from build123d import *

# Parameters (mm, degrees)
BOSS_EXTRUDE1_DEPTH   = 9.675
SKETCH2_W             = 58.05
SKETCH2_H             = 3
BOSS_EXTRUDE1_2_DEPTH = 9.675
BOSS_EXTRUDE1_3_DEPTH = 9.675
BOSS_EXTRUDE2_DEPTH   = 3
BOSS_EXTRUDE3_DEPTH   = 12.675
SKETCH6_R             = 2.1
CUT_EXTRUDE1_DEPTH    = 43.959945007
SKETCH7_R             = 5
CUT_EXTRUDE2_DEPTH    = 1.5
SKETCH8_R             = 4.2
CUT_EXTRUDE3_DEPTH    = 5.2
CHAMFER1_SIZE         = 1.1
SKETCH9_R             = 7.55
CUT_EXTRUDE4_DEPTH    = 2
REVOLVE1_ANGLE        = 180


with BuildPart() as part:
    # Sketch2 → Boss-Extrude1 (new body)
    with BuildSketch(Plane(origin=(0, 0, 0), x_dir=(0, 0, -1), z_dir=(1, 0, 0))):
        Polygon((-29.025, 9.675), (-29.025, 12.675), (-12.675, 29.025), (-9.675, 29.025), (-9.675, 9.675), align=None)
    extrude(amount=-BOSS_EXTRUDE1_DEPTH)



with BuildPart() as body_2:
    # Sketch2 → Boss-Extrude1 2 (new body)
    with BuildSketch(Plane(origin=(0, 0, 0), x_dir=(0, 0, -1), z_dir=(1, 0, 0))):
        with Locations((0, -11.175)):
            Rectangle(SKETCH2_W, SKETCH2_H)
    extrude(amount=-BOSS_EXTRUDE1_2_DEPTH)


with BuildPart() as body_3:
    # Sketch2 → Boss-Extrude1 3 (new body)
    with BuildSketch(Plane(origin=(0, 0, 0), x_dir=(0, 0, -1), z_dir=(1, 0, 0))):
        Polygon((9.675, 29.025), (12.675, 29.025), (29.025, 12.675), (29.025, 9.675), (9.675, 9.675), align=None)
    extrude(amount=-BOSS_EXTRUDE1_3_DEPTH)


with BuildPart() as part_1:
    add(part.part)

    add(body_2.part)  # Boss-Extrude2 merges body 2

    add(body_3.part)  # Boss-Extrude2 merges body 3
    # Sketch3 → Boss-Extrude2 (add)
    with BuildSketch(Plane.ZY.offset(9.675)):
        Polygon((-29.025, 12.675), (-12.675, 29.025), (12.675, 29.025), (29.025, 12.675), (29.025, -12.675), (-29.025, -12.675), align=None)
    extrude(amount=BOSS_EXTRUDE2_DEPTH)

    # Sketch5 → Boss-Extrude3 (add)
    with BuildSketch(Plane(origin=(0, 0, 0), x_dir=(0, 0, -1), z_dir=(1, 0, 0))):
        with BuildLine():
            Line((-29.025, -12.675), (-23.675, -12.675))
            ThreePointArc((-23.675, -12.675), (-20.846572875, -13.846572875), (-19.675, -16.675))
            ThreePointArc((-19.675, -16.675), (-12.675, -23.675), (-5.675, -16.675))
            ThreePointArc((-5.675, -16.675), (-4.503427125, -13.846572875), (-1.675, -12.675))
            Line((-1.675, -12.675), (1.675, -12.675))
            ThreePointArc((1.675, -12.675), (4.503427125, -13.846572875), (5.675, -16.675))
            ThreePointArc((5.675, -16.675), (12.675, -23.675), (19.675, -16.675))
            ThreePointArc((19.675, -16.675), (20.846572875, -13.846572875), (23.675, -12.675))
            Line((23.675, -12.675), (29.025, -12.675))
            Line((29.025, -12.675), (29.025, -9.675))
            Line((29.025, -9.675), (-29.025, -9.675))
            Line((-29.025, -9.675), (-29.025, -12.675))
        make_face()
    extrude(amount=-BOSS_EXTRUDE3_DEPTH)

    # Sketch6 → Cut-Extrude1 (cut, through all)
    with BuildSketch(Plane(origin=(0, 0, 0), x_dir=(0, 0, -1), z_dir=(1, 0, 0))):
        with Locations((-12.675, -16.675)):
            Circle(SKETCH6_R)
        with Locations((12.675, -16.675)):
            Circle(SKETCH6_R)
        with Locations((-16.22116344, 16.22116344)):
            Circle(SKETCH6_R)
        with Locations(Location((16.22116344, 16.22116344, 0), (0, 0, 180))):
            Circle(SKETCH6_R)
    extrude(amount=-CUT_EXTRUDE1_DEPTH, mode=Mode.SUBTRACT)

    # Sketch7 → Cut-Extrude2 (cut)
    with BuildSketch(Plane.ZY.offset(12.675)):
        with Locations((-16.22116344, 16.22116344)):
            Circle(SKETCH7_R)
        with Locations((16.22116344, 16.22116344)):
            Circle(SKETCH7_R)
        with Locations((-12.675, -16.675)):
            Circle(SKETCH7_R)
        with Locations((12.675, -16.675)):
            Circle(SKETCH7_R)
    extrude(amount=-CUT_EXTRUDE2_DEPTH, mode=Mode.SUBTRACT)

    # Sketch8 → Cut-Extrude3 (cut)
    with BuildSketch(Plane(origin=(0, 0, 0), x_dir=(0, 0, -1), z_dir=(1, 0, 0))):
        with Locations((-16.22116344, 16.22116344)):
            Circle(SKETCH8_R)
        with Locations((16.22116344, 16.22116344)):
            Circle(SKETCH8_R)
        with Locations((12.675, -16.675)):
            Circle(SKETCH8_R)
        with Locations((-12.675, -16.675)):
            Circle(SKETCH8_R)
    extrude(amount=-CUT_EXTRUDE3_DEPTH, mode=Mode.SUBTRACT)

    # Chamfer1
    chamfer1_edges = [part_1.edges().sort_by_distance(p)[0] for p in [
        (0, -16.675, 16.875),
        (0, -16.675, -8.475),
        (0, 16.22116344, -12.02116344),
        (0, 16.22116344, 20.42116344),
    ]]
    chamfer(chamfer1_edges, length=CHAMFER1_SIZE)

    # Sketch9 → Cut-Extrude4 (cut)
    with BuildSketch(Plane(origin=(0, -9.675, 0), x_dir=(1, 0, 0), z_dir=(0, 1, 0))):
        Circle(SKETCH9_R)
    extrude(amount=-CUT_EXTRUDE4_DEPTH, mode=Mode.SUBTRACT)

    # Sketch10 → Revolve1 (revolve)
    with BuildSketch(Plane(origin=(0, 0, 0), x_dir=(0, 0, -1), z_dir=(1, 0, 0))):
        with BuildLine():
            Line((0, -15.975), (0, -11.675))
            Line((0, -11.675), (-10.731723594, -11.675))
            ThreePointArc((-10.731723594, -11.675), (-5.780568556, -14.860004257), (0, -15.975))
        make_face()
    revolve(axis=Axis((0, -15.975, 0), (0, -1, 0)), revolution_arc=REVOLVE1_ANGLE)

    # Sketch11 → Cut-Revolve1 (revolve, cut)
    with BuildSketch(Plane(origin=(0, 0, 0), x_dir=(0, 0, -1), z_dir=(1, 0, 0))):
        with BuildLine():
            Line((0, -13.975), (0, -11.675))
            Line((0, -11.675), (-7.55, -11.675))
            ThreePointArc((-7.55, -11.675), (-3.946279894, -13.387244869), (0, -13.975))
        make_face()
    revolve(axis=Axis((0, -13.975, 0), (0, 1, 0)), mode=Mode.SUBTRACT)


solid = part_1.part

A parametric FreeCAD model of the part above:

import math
import FreeCAD as App
import Part
import Sketcher


def edges_at(feature, points):
    """Names of the edges that pass closest to the given points."""
    edges = feature.Shape.Edges
    near = lambda p: min(range(len(edges)), key=lambda i: edges[i].distToShape(Part.Vertex(*p))[0])
    return sorted({f"Edge{near(p) + 1}" for p in points})


def add_polygon(sketch, points):
    """Adds a closed chain of lines whose ends are joined by coincident constraints."""
    first, n = sketch.GeometryCount, len(points)
    for a, b in zip(points, points[1:] + points[:1]):
        sketch.addGeometry(Part.LineSegment(App.Vector(*a, 0), App.Vector(*b, 0)), False)
    for i in range(n):
        sketch.addConstraint(Sketcher.Constraint("Coincident", first + i, 2, first + (i + 1) % n, 1))

doc = App.newDocument("Part")
body = doc.addObject("PartDesign::Body", "Body")

# Sketch on YZ plane
sketch1 = doc.addObject("Sketcher::SketchObject", "Sketch")
body.addObject(sketch1)
sketch1.AttachmentSupport = (doc.YZ_Plane, [""])
sketch1.MapMode = "FlatFace"
add_polygon(sketch1, [(12.7, 29), (9.7, 29), (9.7, 9.7), (29, 9.7), (29, 12.7)])  # lines 0-4
sketch1.addConstraint(Sketcher.Constraint("Horizontal", 0))
sketch1.addConstraint(Sketcher.Constraint("Vertical", 1))
sketch1.addConstraint(Sketcher.Constraint("Horizontal", 2))
sketch1.addConstraint(Sketcher.Constraint("Vertical", 3))
sketch1.addConstraint(Sketcher.Constraint("Equal", 2, 1))
sketch1.addConstraint(Sketcher.Constraint("Equal", 0, 3))
sketch1.addConstraint(Sketcher.Constraint("DistanceX", 0, 2, 0, 1, 3.0))
sketch1.addConstraint(Sketcher.Constraint("DistanceX", 2, 1, 2, 2, 19.35))
sketch1.addConstraint(Sketcher.Constraint("DistanceX", -1, 1, 0, 2, 9.675))
sketch1.addConstraint(Sketcher.Constraint("DistanceY", -1, 1, 0, 2, 29.025))
pad1 = doc.addObject("PartDesign::Pad", "Pad")
body.addObject(pad1)
pad1.Profile = sketch1
pad1.Length = 9.675
pad1.Reversed = True
body2 = doc.addObject("PartDesign::Body", "Body001")

# Sketch on YZ plane
sketch2 = doc.addObject("Sketcher::SketchObject", "Sketch001")
body2.addObject(sketch2)
sketch2.AttachmentSupport = (doc.getObject("YZ_Plane001"), [""])
sketch2.MapMode = "FlatFace"
add_polygon(sketch2, [(-9.7, 29), (-12.7, 29), (-12.7, -29), (-9.7, -29)])  # lines 0-3
sketch2.addConstraint(Sketcher.Constraint("Horizontal", 0))
sketch2.addConstraint(Sketcher.Constraint("Vertical", 1))
sketch2.addConstraint(Sketcher.Constraint("Horizontal", 2))
sketch2.addConstraint(Sketcher.Constraint("Vertical", 3))
sketch2.addConstraint(Sketcher.Constraint("DistanceX", 0, 2, 0, 1, 3.0))
sketch2.addConstraint(Sketcher.Constraint("DistanceY", 1, 2, 1, 1, 58.05))
sketch2.addConstraint(Sketcher.Constraint("DistanceX", 0, 2, -1, 1, 12.675))
sketch2.addConstraint(Sketcher.Constraint("DistanceY", -1, 1, 0, 2, 29.025))
pad2 = doc.addObject("PartDesign::Pad", "Pad001")
body2.addObject(pad2)
pad2.Profile = sketch2
pad2.Length = 9.675
pad2.Reversed = True
body3 = doc.addObject("PartDesign::Body", "Body002")

# Sketch on YZ plane
sketch3 = doc.addObject("Sketcher::SketchObject", "Sketch002")
body3.addObject(sketch3)
sketch3.AttachmentSupport = (doc.getObject("YZ_Plane002"), [""])
sketch3.MapMode = "FlatFace"
add_polygon(sketch3, [(29, -12.7), (29, -9.7), (9.7, -9.7), (9.7, -29), (12.7, -29)])  # lines 0-4
sketch3.addConstraint(Sketcher.Constraint("Vertical", 0))
sketch3.addConstraint(Sketcher.Constraint("Horizontal", 1))
sketch3.addConstraint(Sketcher.Constraint("Vertical", 2))
sketch3.addConstraint(Sketcher.Constraint("Horizontal", 3))
sketch3.addConstraint(Sketcher.Constraint("Equal", 3, 0))
sketch3.addConstraint(Sketcher.Constraint("Equal", 1, 2))
sketch3.addConstraint(Sketcher.Constraint("DistanceX", 3, 1, 3, 2, 3.0))
sketch3.addConstraint(Sketcher.Constraint("DistanceX", 1, 2, 1, 1, 19.35))
sketch3.addConstraint(Sketcher.Constraint("DistanceX", -1, 1, 0, 2, 29.025))
sketch3.addConstraint(Sketcher.Constraint("DistanceY", 0, 2, -1, 1, 9.675))
pad3 = doc.addObject("PartDesign::Pad", "Pad002")
body3.addObject(pad3)
pad3.Profile = sketch3
pad3.Length = 9.675
pad3.Reversed = True
body.AllowCompound = True
doc.recompute()

boolean = doc.addObject("PartDesign::Boolean", "Boolean")
body.addObject(boolean)
boolean.Type = "Fuse"
boolean.addObjects([body2])
doc.recompute()

boolean2 = doc.addObject("PartDesign::Boolean", "Boolean001")
body.addObject(boolean2)
boolean2.Type = "Fuse"
boolean2.addObjects([body3])

# Sketch on YZ plane
sketch4 = doc.addObject("Sketcher::SketchObject", "Sketch003")
body.addObject(sketch4)
sketch4.AttachmentSupport = (doc.YZ_Plane, [""])
sketch4.MapMode = "FlatFace"
sketch4.AttachmentOffset = App.Placement(App.Vector(0, 0, -9.675), App.Rotation())
add_polygon(sketch4, [(29, -13), (13, -29), (-13, -29), (-13, 29), (13, 29), (29, 13)])  # lines 0-5
sketch4.addConstraint(Sketcher.Constraint("Horizontal", 1))
sketch4.addConstraint(Sketcher.Constraint("Vertical", 2))
sketch4.addConstraint(Sketcher.Constraint("Horizontal", 3))
sketch4.addConstraint(Sketcher.Constraint("Vertical", 5))
sketch4.addConstraint(Sketcher.Constraint("Symmetric", 0, 2, 2, 2, -1, 1))
sketch4.addConstraint(Sketcher.Constraint("Perpendicular", 0, 4))
sketch4.addConstraint(Sketcher.Constraint("Vertical", 0, 2, 3, 2))
sketch4.addConstraint(Sketcher.Constraint("Equal", 3, 5))
sketch4.addConstraint(Sketcher.Constraint("Equal", 0, 4))
sketch4.addConstraint(Sketcher.Constraint("DistanceX", 1, 2, 1, 1, 25.35))
sketch4.addConstraint(Sketcher.Constraint("DistanceY", 2, 1, 2, 2, 58.05))
pad4 = doc.addObject("PartDesign::Pad", "Pad003")
body.addObject(pad4)
pad4.Profile = sketch4
pad4.Length = 3
pad4.Reversed = True

# Sketch on YZ plane
sketch5 = doc.addObject("Sketcher::SketchObject", "Sketch004")
body.addObject(sketch5)
sketch5.AttachmentSupport = (doc.YZ_Plane, [""])
sketch5.MapMode = "FlatFace"
sketch5.addGeometry(Part.LineSegment(App.Vector(-12.7, 29, 0), App.Vector(-12.7, 23.7, 0)), False)
sketch5.addGeometry(Part.ArcOfCircle(Part.Circle(App.Vector(-16.7, 23.7, 0), App.Vector(0, 0, 1), 4), math.radians(-90), math.radians(0)), False)
sketch5.addGeometry(Part.ArcOfCircle(Part.Circle(App.Vector(-16.7, 12.7, 0), App.Vector(0, 0, 1), 7), math.radians(90), math.radians(270)), False)
sketch5.addGeometry(Part.ArcOfCircle(Part.Circle(App.Vector(-16.7, 1.7, 0), App.Vector(0, 0, 1), 4), math.radians(0), math.radians(90)), False)
sketch5.addGeometry(Part.LineSegment(App.Vector(-12.7, 1.7, 0), App.Vector(-12.7, -1.7, 0)), False)
sketch5.addGeometry(Part.ArcOfCircle(Part.Circle(App.Vector(-16.7, -1.7, 0), App.Vector(0, 0, 1), 4), math.radians(-90), math.radians(0)), False)
sketch5.addGeometry(Part.ArcOfCircle(Part.Circle(App.Vector(-16.7, -12.7, 0), App.Vector(0, 0, 1), 7), math.radians(90), math.radians(270)), False)
sketch5.addGeometry(Part.ArcOfCircle(Part.Circle(App.Vector(-16.7, -23.7, 0), App.Vector(0, 0, 1), 4), math.radians(0), math.radians(90)), False)
sketch5.addGeometry(Part.LineSegment(App.Vector(-12.7, -23.7, 0), App.Vector(-12.7, -29, 0)), False)
sketch5.addGeometry(Part.LineSegment(App.Vector(-12.7, -29, 0), App.Vector(-9.7, -29, 0)), False)
sketch5.addGeometry(Part.LineSegment(App.Vector(-9.7, -29, 0), App.Vector(-9.7, 29, 0)), False)
sketch5.addGeometry(Part.LineSegment(App.Vector(-9.7, 29, 0), App.Vector(-12.7, 29, 0)), False)
sketch5.addConstraint(Sketcher.Constraint("Tangent", 0, 2, 1, 2))
sketch5.addConstraint(Sketcher.Constraint("Tangent", 1, 1, 2, 1))
sketch5.addConstraint(Sketcher.Constraint("Tangent", 2, 2, 3, 2))
sketch5.addConstraint(Sketcher.Constraint("Tangent", 3, 1, 4, 1))
sketch5.addConstraint(Sketcher.Constraint("Tangent", 4, 2, 5, 2))
sketch5.addConstraint(Sketcher.Constraint("Tangent", 5, 1, 6, 1))
sketch5.addConstraint(Sketcher.Constraint("Tangent", 6, 2, 7, 2))
sketch5.addConstraint(Sketcher.Constraint("Tangent", 7, 1, 8, 1))
sketch5.addConstraint(Sketcher.Constraint("Coincident", 8, 2, 9, 1))
sketch5.addConstraint(Sketcher.Constraint("Coincident", 9, 2, 10, 1))
sketch5.addConstraint(Sketcher.Constraint("Coincident", 10, 2, 11, 1))
sketch5.addConstraint(Sketcher.Constraint("Coincident", 11, 2, 0, 1))
sketch5.addConstraint(Sketcher.Constraint("Vertical", 0))
sketch5.addConstraint(Sketcher.Constraint("Vertical", 4))
sketch5.addConstraint(Sketcher.Constraint("Vertical", 8))
sketch5.addConstraint(Sketcher.Constraint("Horizontal", 9))
sketch5.addConstraint(Sketcher.Constraint("Vertical", 10))
sketch5.addConstraint(Sketcher.Constraint("Horizontal", 11))
sketch5.addConstraint(Sketcher.Constraint("Equal", 1, 3))
sketch5.addConstraint(Sketcher.Constraint("Equal", 3, 5))
sketch5.addConstraint(Sketcher.Constraint("Equal", 2, 6))
sketch5.addConstraint(Sketcher.Constraint("Equal", 5, 7))
sketch5.addConstraint(Sketcher.Constraint("Symmetric", 2, 3, 6, 3, -1))
sketch5.addConstraint(Sketcher.Constraint("Symmetric", 8, 2, 11, 2, -1))
sketch5.addConstraint(Sketcher.Constraint("Vertical", 1, 3, 2, 3))
sketch5.addConstraint(Sketcher.Constraint("Vertical", 2, 3, 3, 3))
sketch5.addConstraint(Sketcher.Constraint("Radius", 1, 4.0))
sketch5.addConstraint(Sketcher.Constraint("Radius", 2, 7.0))
sketch5.addConstraint(Sketcher.Constraint("DistanceX", 9, 1, 9, 2, 3.0))
sketch5.addConstraint(Sketcher.Constraint("DistanceY", 0, 2, 0, 1, 5.35))
sketch5.addConstraint(Sketcher.Constraint("DistanceY", 4, 2, 4, 1, 3.35))
sketch5.addConstraint(Sketcher.Constraint("DistanceX", 1, 3, -1, 1, 16.675))
pad5 = doc.addObject("PartDesign::Pad", "Pad004")
body.addObject(pad5)
pad5.Profile = sketch5
pad5.Length = 12.675
pad5.Reversed = True

# Sketch on YZ plane
sketch6 = doc.addObject("Sketcher::SketchObject", "Sketch005")
body.addObject(sketch6)
sketch6.AttachmentSupport = (doc.YZ_Plane, [""])
sketch6.MapMode = "FlatFace"
sketch6.addGeometry(Part.Circle(App.Vector(-16.7, 12.7, 0), App.Vector(0, 0, 1), 2.1), False)
sketch6.addGeometry(Part.Circle(App.Vector(-16.7, -12.7, 0), App.Vector(0, 0, 1), 2.1), False)
sketch6.addGeometry(Part.Circle(App.Vector(16.2, 16.2, 0), App.Vector(0, 0, 1), 2.1), False)
sketch6.addGeometry(Part.Circle(App.Vector(16.2, -16.2, 0), App.Vector(0, 0, 1), 2.1), False)
sketch6.addConstraint(Sketcher.Constraint("Equal", 0, 1))
sketch6.addConstraint(Sketcher.Constraint("Equal", 1, 2))
sketch6.addConstraint(Sketcher.Constraint("Equal", 2, 3))
sketch6.addConstraint(Sketcher.Constraint("Symmetric", 0, 3, 1, 3, -1))
sketch6.addConstraint(Sketcher.Constraint("Symmetric", 2, 3, 3, 3, -1))
sketch6.addConstraint(Sketcher.Constraint("Diameter", 0, 4.2))
sketch6.addConstraint(Sketcher.Constraint("DistanceY", 1, 3, 0, 3, 25.35))
sketch6.addConstraint(Sketcher.Constraint("DistanceX", 0, 3, -1, 1, 16.675))
sketch6.addConstraint(Sketcher.Constraint("DistanceX", -1, 1, 2, 3, 16.221163))
sketch6.addConstraint(Sketcher.Constraint("DistanceY", -1, 1, 2, 3, 16.221163))
pocket1 = doc.addObject("PartDesign::Pocket", "Pocket")
body.addObject(pocket1)
pocket1.Profile = sketch6
pocket1.Type = "ThroughAll"

# Sketch on YZ plane
sketch7 = doc.addObject("Sketcher::SketchObject", "Sketch006")
body.addObject(sketch7)
sketch7.AttachmentSupport = (doc.YZ_Plane, [""])
sketch7.MapMode = "FlatFace"
sketch7.AttachmentOffset = App.Placement(App.Vector(0, 0, -12.675), App.Rotation())
sketch7.addGeometry(Part.Circle(App.Vector(16, -16, 0), App.Vector(0, 0, 1), 5), False)
sketch7.addGeometry(Part.Circle(App.Vector(16, 16, 0), App.Vector(0, 0, 1), 5), False)
sketch7.addGeometry(Part.Circle(App.Vector(-17, -13, 0), App.Vector(0, 0, 1), 5), False)
sketch7.addGeometry(Part.Circle(App.Vector(-17, 13, 0), App.Vector(0, 0, 1), 5), False)
sketch7.addConstraint(Sketcher.Constraint("Equal", 0, 1))
sketch7.addConstraint(Sketcher.Constraint("Equal", 1, 2))
sketch7.addConstraint(Sketcher.Constraint("Equal", 2, 3))
sketch7.addConstraint(Sketcher.Constraint("Symmetric", 0, 3, 1, 3, -1))
sketch7.addConstraint(Sketcher.Constraint("Symmetric", 2, 3, 3, 3, -1))
sketch7.addConstraint(Sketcher.Constraint("Diameter", 0, 10.0))
sketch7.addConstraint(Sketcher.Constraint("DistanceY", 2, 3, 3, 3, 25.35))
sketch7.addConstraint(Sketcher.Constraint("DistanceX", 2, 3, -1, 1, 16.675))
sketch7.addConstraint(Sketcher.Constraint("DistanceX", -1, 1, 0, 3, 16.221163))
sketch7.addConstraint(Sketcher.Constraint("DistanceY", 0, 3, -1, 1, 16.221163))
pocket2 = doc.addObject("PartDesign::Pocket", "Pocket001")
body.addObject(pocket2)
pocket2.Profile = sketch7
pocket2.Length = 1.5
pocket2.Reversed = True

# Sketch on YZ plane
sketch8 = doc.addObject("Sketcher::SketchObject", "Sketch007")
body.addObject(sketch8)
sketch8.AttachmentSupport = (doc.YZ_Plane, [""])
sketch8.MapMode = "FlatFace"
sketch8.addGeometry(Part.Circle(App.Vector(16.2, 16.2, 0), App.Vector(0, 0, 1), 4.2), False)
sketch8.addGeometry(Part.Circle(App.Vector(16.2, -16.2, 0), App.Vector(0, 0, 1), 4.2), False)
sketch8.addGeometry(Part.Circle(App.Vector(-16.7, -12.7, 0), App.Vector(0, 0, 1), 4.2), False)
sketch8.addGeometry(Part.Circle(App.Vector(-16.7, 12.7, 0), App.Vector(0, 0, 1), 4.2), False)
sketch8.addConstraint(Sketcher.Constraint("Equal", 0, 1))
sketch8.addConstraint(Sketcher.Constraint("Equal", 1, 2))
sketch8.addConstraint(Sketcher.Constraint("Equal", 2, 3))
sketch8.addConstraint(Sketcher.Constraint("Symmetric", 0, 3, 1, 3, -1))
sketch8.addConstraint(Sketcher.Constraint("Symmetric", 2, 3, 3, 3, -1))
sketch8.addConstraint(Sketcher.Constraint("Diameter", 0, 8.4))
sketch8.addConstraint(Sketcher.Constraint("DistanceY", 2, 3, 3, 3, 25.35))
sketch8.addConstraint(Sketcher.Constraint("DistanceX", 2, 3, -1, 1, 16.675))
sketch8.addConstraint(Sketcher.Constraint("DistanceX", -1, 1, 0, 3, 16.221163))
sketch8.addConstraint(Sketcher.Constraint("DistanceY", -1, 1, 0, 3, 16.221163))
pocket3 = doc.addObject("PartDesign::Pocket", "Pocket002")
body.addObject(pocket3)
pocket3.Profile = sketch8
pocket3.Length = 5.2
doc.recompute()

chamfer = doc.addObject("PartDesign::Chamfer", "Chamfer")
body.addObject(chamfer)
chamfer.Base = (pocket3, edges_at(pocket3, [
    (0, -16.675, 16.875),
    (0, -16.675, -8.475),
    (0, 16.221, -12.021),
    (0, 16.221, 20.421),
]))
chamfer.Size = 1.1

# Sketch on XZ plane
sketch9 = doc.addObject("Sketcher::SketchObject", "Sketch008")
body.addObject(sketch9)
sketch9.AttachmentSupport = (doc.XZ_Plane, [""])
sketch9.MapMode = "FlatFace"
sketch9.AttachmentOffset = App.Placement(App.Vector(0, 0, 9.675), App.Rotation())
sketch9.addGeometry(Part.Circle(App.Vector(0, 0, 0), App.Vector(0, 0, 1), 8), False)
sketch9.addConstraint(Sketcher.Constraint("Coincident", 0, 3, -1, 1))
sketch9.addConstraint(Sketcher.Constraint("Diameter", 0, 15.1))
pocket4 = doc.addObject("PartDesign::Pocket", "Pocket003")
body.addObject(pocket4)
pocket4.Profile = sketch9
pocket4.Length = 2
pocket4.Reversed = True

# Sketch on YZ plane
sketch10 = doc.addObject("Sketcher::SketchObject", "Sketch009")
body.addObject(sketch10)
sketch10.AttachmentSupport = (doc.YZ_Plane, [""])
sketch10.MapMode = "FlatFace"
sketch10.addGeometry(Part.LineSegment(App.Vector(-16, 0, 0), App.Vector(-11.7, 0, 0)), False)
sketch10.addGeometry(Part.LineSegment(App.Vector(-11.7, 0, 0), App.Vector(-11.7, 10.7, 0)), False)
sketch10.addGeometry(Part.ArcOfCircle(Part.Circle(App.Vector(-0.4, 0, 0), App.Vector(0, 0, 1), 15.5), math.radians(136), math.radians(180)), False)
sketch10.addConstraint(Sketcher.Constraint("Coincident", 0, 2, 1, 1))
sketch10.addConstraint(Sketcher.Constraint("Coincident", 1, 2, 2, 1))
sketch10.addConstraint(Sketcher.Constraint("Coincident", 2, 2, 0, 1))
sketch10.addConstraint(Sketcher.Constraint("Horizontal", 0))
sketch10.addConstraint(Sketcher.Constraint("Vertical", 1))
sketch10.addConstraint(Sketcher.Constraint("PointOnObject", 2, 3, -1))
sketch10.addConstraint(Sketcher.Constraint("PointOnObject", 0, 2, -1))
sketch10.addConstraint(Sketcher.Constraint("DistanceX", 0, 1, 0, 2, 4.3))
sketch10.addConstraint(Sketcher.Constraint("DistanceX", 0, 2, -1, 1, 11.675))
sketch10.addConstraint(Sketcher.Constraint("Radius", 2, 15.541848))
revolution = doc.addObject("PartDesign::Revolution", "Revolution")
body.addObject(revolution)
revolution.Profile = sketch10
revolution.ReferenceAxis = (sketch10, ["H_Axis"])
revolution.Angle = 180
revolution.Reversed = True

# Sketch on YZ plane
sketch11 = doc.addObject("Sketcher::SketchObject", "Sketch010")
body.addObject(sketch11)
sketch11.AttachmentSupport = (doc.YZ_Plane, [""])
sketch11.MapMode = "FlatFace"
sketch11.addGeometry(Part.LineSegment(App.Vector(-14, 0, 0), App.Vector(-11.7, 0, 0)), False)
sketch11.addGeometry(Part.LineSegment(App.Vector(-11.7, 0, 0), App.Vector(-11.7, 7.5, 0)), False)
sketch11.addGeometry(Part.ArcOfCircle(Part.Circle(App.Vector(-0.4, 0, 0), App.Vector(0, 0, 1), 13.5), math.radians(146), math.radians(180)), False)
sketch11.addConstraint(Sketcher.Constraint("Coincident", 0, 2, 1, 1))
sketch11.addConstraint(Sketcher.Constraint("Coincident", 1, 2, 2, 1))
sketch11.addConstraint(Sketcher.Constraint("Coincident", 2, 2, 0, 1))
sketch11.addConstraint(Sketcher.Constraint("Horizontal", 0))
sketch11.addConstraint(Sketcher.Constraint("Vertical", 1))
sketch11.addConstraint(Sketcher.Constraint("PointOnObject", 2, 3, -1))
sketch11.addConstraint(Sketcher.Constraint("PointOnObject", 0, 2, -1))
sketch11.addConstraint(Sketcher.Constraint("DistanceX", 0, 1, 0, 2, 2.3))
sketch11.addConstraint(Sketcher.Constraint("DistanceY", 1, 1, 1, 2, 7.55))
sketch11.addConstraint(Sketcher.Constraint("DistanceX", 0, 2, -1, 1, 11.675))
groove = doc.addObject("PartDesign::Groove", "Groove")
body.addObject(groove)
groove.Profile = sketch11
groove.ReferenceAxis = (sketch11, ["H_Axis"])
groove.Angle = 360

doc.recompute()
